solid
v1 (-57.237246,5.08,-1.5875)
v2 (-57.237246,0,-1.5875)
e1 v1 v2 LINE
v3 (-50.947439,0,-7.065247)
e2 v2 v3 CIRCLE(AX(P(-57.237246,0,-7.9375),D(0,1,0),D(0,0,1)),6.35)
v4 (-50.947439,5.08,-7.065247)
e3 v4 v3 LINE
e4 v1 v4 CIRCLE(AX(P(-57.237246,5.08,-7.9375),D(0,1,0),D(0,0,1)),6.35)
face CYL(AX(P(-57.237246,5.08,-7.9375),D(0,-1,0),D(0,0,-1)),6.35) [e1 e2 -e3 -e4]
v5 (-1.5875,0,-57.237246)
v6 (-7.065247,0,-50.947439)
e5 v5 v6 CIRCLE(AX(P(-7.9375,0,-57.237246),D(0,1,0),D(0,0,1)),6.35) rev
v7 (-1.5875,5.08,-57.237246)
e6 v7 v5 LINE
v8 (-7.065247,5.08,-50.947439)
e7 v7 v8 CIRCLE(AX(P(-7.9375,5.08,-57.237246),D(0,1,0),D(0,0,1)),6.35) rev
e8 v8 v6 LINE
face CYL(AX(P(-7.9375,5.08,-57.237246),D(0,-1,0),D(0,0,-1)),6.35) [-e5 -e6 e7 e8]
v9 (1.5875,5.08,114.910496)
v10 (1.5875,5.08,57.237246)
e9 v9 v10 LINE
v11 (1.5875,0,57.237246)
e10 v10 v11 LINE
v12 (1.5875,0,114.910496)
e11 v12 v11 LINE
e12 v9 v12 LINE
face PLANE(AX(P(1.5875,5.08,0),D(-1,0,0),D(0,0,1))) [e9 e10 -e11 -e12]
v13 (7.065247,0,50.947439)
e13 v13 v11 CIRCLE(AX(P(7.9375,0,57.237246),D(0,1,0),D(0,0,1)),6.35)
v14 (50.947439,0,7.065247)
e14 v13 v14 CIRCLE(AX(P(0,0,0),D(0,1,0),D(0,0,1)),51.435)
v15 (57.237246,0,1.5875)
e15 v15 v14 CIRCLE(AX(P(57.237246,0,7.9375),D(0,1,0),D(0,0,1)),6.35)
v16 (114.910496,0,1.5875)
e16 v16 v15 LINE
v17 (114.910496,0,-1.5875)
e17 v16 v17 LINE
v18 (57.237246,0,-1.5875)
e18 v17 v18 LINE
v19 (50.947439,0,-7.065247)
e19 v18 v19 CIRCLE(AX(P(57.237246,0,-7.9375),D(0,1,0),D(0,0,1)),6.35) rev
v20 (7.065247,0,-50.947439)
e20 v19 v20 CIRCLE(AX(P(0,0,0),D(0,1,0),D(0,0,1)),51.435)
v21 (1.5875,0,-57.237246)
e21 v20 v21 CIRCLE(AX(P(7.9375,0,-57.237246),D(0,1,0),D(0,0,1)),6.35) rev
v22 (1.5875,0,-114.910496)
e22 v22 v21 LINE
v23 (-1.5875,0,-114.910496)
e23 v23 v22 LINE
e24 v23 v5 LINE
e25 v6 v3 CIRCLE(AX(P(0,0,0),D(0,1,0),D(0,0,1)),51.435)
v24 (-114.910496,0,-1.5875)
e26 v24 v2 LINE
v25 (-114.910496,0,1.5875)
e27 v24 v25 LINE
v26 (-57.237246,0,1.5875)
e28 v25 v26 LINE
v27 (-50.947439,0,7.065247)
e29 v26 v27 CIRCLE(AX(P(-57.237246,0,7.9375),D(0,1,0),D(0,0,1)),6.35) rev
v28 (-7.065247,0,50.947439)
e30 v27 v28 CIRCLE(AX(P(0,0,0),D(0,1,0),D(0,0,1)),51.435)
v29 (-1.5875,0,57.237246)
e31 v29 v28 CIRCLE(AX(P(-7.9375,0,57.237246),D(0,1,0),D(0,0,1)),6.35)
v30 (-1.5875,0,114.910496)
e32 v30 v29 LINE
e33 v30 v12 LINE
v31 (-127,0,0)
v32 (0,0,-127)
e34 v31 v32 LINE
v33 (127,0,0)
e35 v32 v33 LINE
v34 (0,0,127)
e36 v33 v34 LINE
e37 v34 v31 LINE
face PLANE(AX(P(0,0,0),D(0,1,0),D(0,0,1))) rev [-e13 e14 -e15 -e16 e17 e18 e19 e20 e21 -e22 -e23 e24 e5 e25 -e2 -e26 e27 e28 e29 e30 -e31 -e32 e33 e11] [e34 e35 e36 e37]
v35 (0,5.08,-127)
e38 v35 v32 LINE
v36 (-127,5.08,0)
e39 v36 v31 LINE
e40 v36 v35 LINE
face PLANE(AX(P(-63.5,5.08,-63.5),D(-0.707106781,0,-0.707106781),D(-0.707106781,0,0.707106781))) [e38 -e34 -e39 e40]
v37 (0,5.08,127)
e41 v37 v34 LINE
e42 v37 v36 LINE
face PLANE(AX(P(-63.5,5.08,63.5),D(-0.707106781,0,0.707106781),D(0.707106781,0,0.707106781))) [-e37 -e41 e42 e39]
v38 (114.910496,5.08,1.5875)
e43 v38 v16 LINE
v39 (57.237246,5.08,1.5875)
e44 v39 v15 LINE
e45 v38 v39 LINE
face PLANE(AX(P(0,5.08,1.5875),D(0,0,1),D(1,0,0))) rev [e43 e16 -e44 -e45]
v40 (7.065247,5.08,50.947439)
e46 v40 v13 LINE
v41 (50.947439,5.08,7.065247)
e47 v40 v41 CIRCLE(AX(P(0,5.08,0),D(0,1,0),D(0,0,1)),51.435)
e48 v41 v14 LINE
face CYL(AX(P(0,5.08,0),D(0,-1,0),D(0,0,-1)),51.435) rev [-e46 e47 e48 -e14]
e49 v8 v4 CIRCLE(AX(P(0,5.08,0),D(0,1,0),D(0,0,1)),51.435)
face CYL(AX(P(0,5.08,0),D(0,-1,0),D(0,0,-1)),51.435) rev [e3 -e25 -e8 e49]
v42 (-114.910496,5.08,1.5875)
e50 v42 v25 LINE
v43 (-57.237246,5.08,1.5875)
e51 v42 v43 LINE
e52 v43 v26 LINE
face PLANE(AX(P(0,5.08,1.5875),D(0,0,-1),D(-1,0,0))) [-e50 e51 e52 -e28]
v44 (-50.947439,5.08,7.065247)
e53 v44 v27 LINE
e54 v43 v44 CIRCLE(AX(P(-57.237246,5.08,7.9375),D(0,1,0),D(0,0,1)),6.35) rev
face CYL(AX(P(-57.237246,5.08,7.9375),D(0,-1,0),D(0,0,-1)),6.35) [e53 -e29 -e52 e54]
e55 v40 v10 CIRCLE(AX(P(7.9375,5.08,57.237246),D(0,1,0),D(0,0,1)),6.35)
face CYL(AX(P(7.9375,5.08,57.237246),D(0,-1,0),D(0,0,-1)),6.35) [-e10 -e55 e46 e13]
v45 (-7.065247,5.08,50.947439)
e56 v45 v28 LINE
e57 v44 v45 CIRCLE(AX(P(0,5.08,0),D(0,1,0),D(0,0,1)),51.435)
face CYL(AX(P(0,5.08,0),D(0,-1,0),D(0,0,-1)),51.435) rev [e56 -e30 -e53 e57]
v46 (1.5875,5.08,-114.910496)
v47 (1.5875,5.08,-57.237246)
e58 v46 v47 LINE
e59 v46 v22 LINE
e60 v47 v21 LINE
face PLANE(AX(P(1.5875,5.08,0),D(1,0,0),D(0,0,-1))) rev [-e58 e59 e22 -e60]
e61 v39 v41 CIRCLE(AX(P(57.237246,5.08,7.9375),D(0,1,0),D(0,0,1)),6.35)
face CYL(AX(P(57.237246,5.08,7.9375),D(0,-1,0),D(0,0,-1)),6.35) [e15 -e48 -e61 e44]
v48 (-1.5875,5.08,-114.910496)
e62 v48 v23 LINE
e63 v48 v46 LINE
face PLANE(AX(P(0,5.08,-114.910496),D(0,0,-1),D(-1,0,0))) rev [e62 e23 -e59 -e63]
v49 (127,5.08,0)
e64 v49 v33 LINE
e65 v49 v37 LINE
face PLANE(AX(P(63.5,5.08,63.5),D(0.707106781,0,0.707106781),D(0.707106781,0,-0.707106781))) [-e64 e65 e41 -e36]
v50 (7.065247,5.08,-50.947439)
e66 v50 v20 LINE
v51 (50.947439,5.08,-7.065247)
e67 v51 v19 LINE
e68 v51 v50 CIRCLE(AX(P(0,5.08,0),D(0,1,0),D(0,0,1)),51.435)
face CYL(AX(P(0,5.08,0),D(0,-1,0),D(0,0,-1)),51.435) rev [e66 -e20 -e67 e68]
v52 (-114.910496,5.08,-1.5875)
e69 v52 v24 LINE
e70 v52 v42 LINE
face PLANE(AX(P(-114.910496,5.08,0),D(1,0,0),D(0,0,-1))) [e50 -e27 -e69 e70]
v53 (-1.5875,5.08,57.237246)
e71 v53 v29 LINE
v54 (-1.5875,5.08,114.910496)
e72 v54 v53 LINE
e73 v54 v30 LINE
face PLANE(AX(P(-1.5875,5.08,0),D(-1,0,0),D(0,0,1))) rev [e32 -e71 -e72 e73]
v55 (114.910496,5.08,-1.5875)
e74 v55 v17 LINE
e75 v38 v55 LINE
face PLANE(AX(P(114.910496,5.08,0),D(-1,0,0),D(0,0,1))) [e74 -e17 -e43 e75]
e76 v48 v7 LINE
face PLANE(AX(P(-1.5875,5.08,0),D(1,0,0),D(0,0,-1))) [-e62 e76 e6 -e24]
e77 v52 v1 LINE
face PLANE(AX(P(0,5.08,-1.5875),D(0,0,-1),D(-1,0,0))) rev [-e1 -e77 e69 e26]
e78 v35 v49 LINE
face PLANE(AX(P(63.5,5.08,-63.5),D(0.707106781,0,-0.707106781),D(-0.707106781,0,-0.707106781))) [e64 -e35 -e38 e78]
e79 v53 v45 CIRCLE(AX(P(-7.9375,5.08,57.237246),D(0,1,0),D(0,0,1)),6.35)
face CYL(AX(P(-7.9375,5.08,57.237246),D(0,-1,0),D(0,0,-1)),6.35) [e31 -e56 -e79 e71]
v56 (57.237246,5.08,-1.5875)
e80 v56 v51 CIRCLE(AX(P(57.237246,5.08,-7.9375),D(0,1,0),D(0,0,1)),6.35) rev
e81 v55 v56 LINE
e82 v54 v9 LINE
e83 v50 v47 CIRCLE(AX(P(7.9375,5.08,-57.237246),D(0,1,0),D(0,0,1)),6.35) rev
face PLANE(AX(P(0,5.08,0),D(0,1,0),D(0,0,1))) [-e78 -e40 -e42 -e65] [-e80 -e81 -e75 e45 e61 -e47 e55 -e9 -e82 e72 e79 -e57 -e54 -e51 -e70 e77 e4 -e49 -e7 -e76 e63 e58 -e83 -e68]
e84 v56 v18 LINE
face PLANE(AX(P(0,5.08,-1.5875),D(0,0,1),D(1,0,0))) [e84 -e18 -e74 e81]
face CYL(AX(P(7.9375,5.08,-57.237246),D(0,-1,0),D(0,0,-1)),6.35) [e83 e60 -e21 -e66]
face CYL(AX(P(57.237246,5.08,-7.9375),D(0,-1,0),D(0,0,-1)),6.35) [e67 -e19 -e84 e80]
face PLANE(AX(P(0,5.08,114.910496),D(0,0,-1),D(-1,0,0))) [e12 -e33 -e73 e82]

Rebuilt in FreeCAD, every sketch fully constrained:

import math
import FreeCAD as App
import Part
import Sketcher
Q = App.Units.Quantity


def add_polygon(sketch, points):
    """Adds a closed chain of lines whose ends are joined by coincident constraints."""
    first, n = sketch.GeometryCount, len(points)
    for a, b in zip(points, points[1:] + points[:1]):
        sketch.addGeometry(Part.LineSegment(App.Vector(*a, 0), App.Vector(*b, 0)), False)
    for i in range(n):
        sketch.addConstraint(Sketcher.Constraint("Coincident", first + i, 2, first + (i + 1) % n, 1))

doc = App.newDocument("Part")
body = doc.addObject("PartDesign::Body", "Body")

sketch1 = doc.addObject("Sketcher::SketchObject", "Sketch")
body.addObject(sketch1)
sketch1.AttachmentSupport = (doc.XZ_Plane, [""])
sketch1.MapMode = "FlatFace"
add_polygon(sketch1, [(0, -127), (-127, 0), (0, 127), (127, 0)])
sketch1.addGeometry(Part.ArcOfCircle(Part.Circle(App.Vector(7.9, 57.2, 0), App.Vector(0, 0, 1), 6.3), math.radians(180), math.radians(262)), False)
sketch1.addGeometry(Part.LineSegment(App.Vector(1.6, 57.2, 0), App.Vector(1.6, 114.9, 0)), False)
sketch1.addGeometry(Part.LineSegment(App.Vector(1.6, 114.9, 0), App.Vector(-1.6, 114.9, 0)), False)
sketch1.addGeometry(Part.LineSegment(App.Vector(-1.6, 114.9, 0), App.Vector(-1.6, 57.2, 0)), False)
sketch1.addGeometry(Part.ArcOfCircle(Part.Circle(App.Vector(-7.9, 57.2, 0), App.Vector(0, 0, 1), 6.3), math.radians(-82), math.radians(0)), False)
sketch1.addGeometry(Part.ArcOfCircle(Part.Circle(App.Vector(0, 0, 0), App.Vector(0, 0, 1), 51.4), math.radians(98), math.radians(172)), False)
sketch1.addGeometry(Part.ArcOfCircle(Part.Circle(App.Vector(-57.2, 7.9, 0), App.Vector(0, 0, 1), 6.3), math.radians(-90), math.radians(-8)), False)
sketch1.addGeometry(Part.LineSegment(App.Vector(-57.2, 1.6, 0), App.Vector(-114.9, 1.6, 0)), False)
sketch1.addGeometry(Part.LineSegment(App.Vector(-114.9, 1.6, 0), App.Vector(-114.9, -1.6, 0)), False)
sketch1.addGeometry(Part.LineSegment(App.Vector(-114.9, -1.6, 0), App.Vector(-57.2, -1.6, 0)), False)
sketch1.addGeometry(Part.ArcOfCircle(Part.Circle(App.Vector(-57.2, -7.9, 0), App.Vector(0, 0, 1), 6.3), math.radians(8), math.radians(90)), False)
sketch1.addGeometry(Part.ArcOfCircle(Part.Circle(App.Vector(0, 0, 0), App.Vector(0, 0, 1), 51.4), math.radians(-172), math.radians(-98)), False)
sketch1.addGeometry(Part.ArcOfCircle(Part.Circle(App.Vector(-7.9, -57.2, 0), App.Vector(0, 0, 1), 6.3), math.radians(0), math.radians(82)), False)
sketch1.addGeometry(Part.LineSegment(App.Vector(-1.6, -57.2, 0), App.Vector(-1.6, -114.9, 0)), False)
sketch1.addGeometry(Part.LineSegment(App.Vector(-1.6, -114.9, 0), App.Vector(1.6, -114.9, 0)), False)
sketch1.addGeometry(Part.LineSegment(App.Vector(1.6, -114.9, 0), App.Vector(1.6, -57.2, 0)), False)
sketch1.addGeometry(Part.ArcOfCircle(Part.Circle(App.Vector(7.9, -57.2, 0), App.Vector(0, 0, 1), 6.3), math.radians(98), math.radians(180)), False)
sketch1.addGeometry(Part.ArcOfCircle(Part.Circle(App.Vector(0, 0, 0), App.Vector(0, 0, 1), 51.4), math.radians(-82), math.radians(-8)), False)
sketch1.addGeometry(Part.ArcOfCircle(Part.Circle(App.Vector(57.2, -7.9, 0), App.Vector(0, 0, 1), 6.3), math.radians(90), math.radians(172)), False)
sketch1.addGeometry(Part.LineSegment(App.Vector(57.2, -1.6, 0), App.Vector(114.9, -1.6, 0)), False)
sketch1.addGeometry(Part.LineSegment(App.Vector(114.9, -1.6, 0), App.Vector(114.9, 1.6, 0)), False)
sketch1.addGeometry(Part.LineSegment(App.Vector(114.9, 1.6, 0), App.Vector(57.2, 1.6, 0)), False)
sketch1.addGeometry(Part.ArcOfCircle(Part.Circle(App.Vector(57.2, 7.9, 0), App.Vector(0, 0, 1), 6.3), math.radians(-172), math.radians(-90)), False)
sketch1.addGeometry(Part.ArcOfCircle(Part.Circle(App.Vector(0, 0, 0), App.Vector(0, 0, 1), 51.4), math.radians(8), math.radians(82)), False)
sketch1.addConstraint([
    Sketcher.Constraint("Tangent", 4, 1, 5, 1),
    Sketcher.Constraint("Coincident", 5, 2, 6, 1),
    Sketcher.Constraint("Coincident", 6, 2, 7, 1),
    Sketcher.Constraint("Tangent", 7, 2, 8, 2),
    Sketcher.Constraint("Tangent", 8, 1, 9, 1),
    Sketcher.Constraint("Tangent", 9, 2, 10, 2),
    Sketcher.Constraint("Tangent", 10, 1, 11, 1),
    Sketcher.Constraint("Coincident", 11, 2, 12, 1),
    Sketcher.Constraint("Coincident", 12, 2, 13, 1),
    Sketcher.Constraint("Tangent", 13, 2, 14, 2),
    Sketcher.Constraint("Tangent", 14, 1, 15, 1),
    Sketcher.Constraint("Tangent", 15, 2, 16, 2),
    Sketcher.Constraint("Tangent", 16, 1, 17, 1),
    Sketcher.Constraint("Coincident", 17, 2, 18, 1),
    Sketcher.Constraint("Coincident", 18, 2, 19, 1),
    Sketcher.Constraint("Tangent", 19, 2, 20, 2),
    Sketcher.Constraint("Tangent", 20, 1, 21, 1),
    Sketcher.Constraint("Tangent", 21, 2, 22, 2),
    Sketcher.Constraint("Tangent", 22, 1, 23, 1),
    Sketcher.Constraint("Coincident", 23, 2, 24, 1),
    Sketcher.Constraint("Coincident", 24, 2, 25, 1),
    Sketcher.Constraint("Tangent", 25, 2, 26, 2),
    Sketcher.Constraint("Tangent", 26, 1, 27, 1),
    Sketcher.Constraint("Tangent", 27, 2, 4, 2),
    Sketcher.Constraint("Vertical", 5),
    Sketcher.Constraint("Horizontal", 6),
    Sketcher.Constraint("Vertical", 7),
    Sketcher.Constraint("Horizontal", 11),
    Sketcher.Constraint("Vertical", 12),
    Sketcher.Constraint("Horizontal", 13),
    Sketcher.Constraint("Vertical", 17),
    Sketcher.Constraint("Horizontal", 18),
    Sketcher.Constraint("Vertical", 19),
    Sketcher.Constraint("Horizontal", 23),
    Sketcher.Constraint("Vertical", 24),
    Sketcher.Constraint("Horizontal", 25),
    Sketcher.Constraint("Coincident", 9, 3, -1, 1),
    Sketcher.Constraint("Coincident", 15, 3, -1, 1),
    Sketcher.Constraint("Coincident", 21, 3, -1, 1),
    Sketcher.Constraint("Coincident", 27, 3, -1, 1),
    Sketcher.Constraint("Equal", 4, 8),
    Sketcher.Constraint("Equal", 8, 10),
    Sketcher.Constraint("Equal", 10, 14),
    Sketcher.Constraint("Equal", 9, 15),
    Sketcher.Constraint("Equal", 14, 16),
    Sketcher.Constraint("Equal", 16, 20),
    Sketcher.Constraint("Equal", 15, 21),
    Sketcher.Constraint("Equal", 20, 22),
    Sketcher.Constraint("Equal", 22, 26),
    Sketcher.Constraint("Equal", 21, 27),
    Sketcher.Constraint("Symmetric", 0, 2, 2, 2, -1, 1),
    Sketcher.Constraint("Symmetric", 1, 2, 3, 2, -1, 1),
    Sketcher.Constraint("Symmetric", 5, 2, 17, 2, -1, 1),
    Sketcher.Constraint("Symmetric", 11, 2, 23, 2, -1, 1),
    Sketcher.Constraint("PointOnObject", 0, 2, -1),
    Sketcher.Constraint("PointOnObject", 1, 2, -2),
    Sketcher.Constraint("Perpendicular", 0, 1),
    Sketcher.Constraint("Horizontal", 4, 3, 8, 3),
    Sketcher.Constraint("Horizontal", 16, 3, 20, 3),
    Sketcher.Constraint("Horizontal", 14, 3, 22, 3),
    Sketcher.Constraint("Horizontal", 10, 3, 26, 3),
    Sketcher.Constraint("Equal", 25, 5),
    Sketcher.Constraint("Equal", 18, 12),
    Sketcher.Constraint("Radius", 4, Q("0.25 in")),
    Sketcher.Constraint("DistanceX", 0, 2, -1, 1, Q("5 in")),
    Sketcher.Constraint("Radius", 9, Q("2.025 in")),
    Sketcher.Constraint("DistanceX", 6, 2, 6, 1, Q("0.125 in")),
    Sketcher.Constraint("DistanceX", 11, 2, 11, 1, Q("57.67325 mm")),
])
pad1 = doc.addObject("PartDesign::Pad", "Pad")
body.addObject(pad1)
pad1.Profile = sketch1
pad1.Length = Q("0.2 in")
pad1.Reversed = True

doc.recompute()
